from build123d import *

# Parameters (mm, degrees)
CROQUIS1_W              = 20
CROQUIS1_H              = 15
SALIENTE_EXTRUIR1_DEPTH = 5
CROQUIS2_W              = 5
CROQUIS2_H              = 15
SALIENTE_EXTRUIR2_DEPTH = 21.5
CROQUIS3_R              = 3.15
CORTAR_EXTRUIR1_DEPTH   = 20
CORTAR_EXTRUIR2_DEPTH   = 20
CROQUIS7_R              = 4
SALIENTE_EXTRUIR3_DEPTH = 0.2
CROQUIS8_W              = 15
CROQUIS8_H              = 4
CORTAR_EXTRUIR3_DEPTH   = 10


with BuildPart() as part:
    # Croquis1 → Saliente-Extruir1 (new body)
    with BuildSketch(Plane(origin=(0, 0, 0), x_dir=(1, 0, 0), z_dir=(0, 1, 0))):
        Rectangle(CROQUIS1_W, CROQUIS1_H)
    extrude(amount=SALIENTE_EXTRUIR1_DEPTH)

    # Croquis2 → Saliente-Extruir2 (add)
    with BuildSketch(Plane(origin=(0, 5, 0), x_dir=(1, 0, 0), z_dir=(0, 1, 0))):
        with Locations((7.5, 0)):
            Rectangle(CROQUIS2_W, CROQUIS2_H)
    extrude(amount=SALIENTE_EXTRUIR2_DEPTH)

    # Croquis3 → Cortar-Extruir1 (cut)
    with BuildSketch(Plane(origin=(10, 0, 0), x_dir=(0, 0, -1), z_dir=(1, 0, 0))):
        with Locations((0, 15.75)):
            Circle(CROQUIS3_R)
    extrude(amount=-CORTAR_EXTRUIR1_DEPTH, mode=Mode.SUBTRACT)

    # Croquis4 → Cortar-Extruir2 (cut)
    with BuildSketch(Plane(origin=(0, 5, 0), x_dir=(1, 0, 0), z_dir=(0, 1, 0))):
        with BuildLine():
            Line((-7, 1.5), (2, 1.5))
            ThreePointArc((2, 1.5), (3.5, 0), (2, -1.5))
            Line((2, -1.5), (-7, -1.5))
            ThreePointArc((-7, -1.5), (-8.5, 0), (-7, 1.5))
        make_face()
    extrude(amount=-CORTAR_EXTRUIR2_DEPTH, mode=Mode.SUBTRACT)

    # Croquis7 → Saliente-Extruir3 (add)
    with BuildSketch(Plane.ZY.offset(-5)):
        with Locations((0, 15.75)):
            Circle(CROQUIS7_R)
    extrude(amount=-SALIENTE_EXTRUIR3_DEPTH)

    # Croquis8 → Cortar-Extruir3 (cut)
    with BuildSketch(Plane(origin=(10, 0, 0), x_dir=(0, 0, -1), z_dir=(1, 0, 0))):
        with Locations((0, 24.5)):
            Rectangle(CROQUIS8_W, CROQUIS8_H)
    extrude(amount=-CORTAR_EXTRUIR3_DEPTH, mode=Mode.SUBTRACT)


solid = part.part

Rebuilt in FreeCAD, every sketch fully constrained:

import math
import FreeCAD as App
import Part
import Sketcher
from FreeCAD import Vector


def add_polygon(sketch, points):
    """Adds a closed chain of lines whose ends are joined by coincident constraints."""
    first, n = sketch.GeometryCount, len(points)
    for a, b in zip(points, points[1:] + points[:1]):
        sketch.addGeometry(Part.LineSegment(App.Vector(*a, 0), App.Vector(*b, 0)), False)
    for i in range(n):
        sketch.addConstraint(Sketcher.Constraint("Coincident", first + i, 2, first + (i + 1) % n, 1))

doc = App.newDocument("Part")
body = doc.addObject("PartDesign::Body", "Body")

# Sketch on XZ plane
sketch1 = body.newObject("Sketcher::SketchObject", "Sketch")
sketch1.AttachmentSupport = (doc.getObject("XZ_Plane"), [""])
sketch1.MapMode = "FlatFace"
add_polygon(sketch1, [(-10, -8), (-10, 8), (10, 8), (10, -8)])  # lines 0-3
sketch1.addConstraint([
    Sketcher.Constraint("Vertical", 0),
    Sketcher.Constraint("Horizontal", 1),
    Sketcher.Constraint("Vertical", 2),
    Sketcher.Constraint("Horizontal", 3),
    Sketcher.Constraint("Symmetric", 0, 2, 2, 2, -1, 1),
    Sketcher.Constraint("DistanceX", 1, 1, 1, 2, 20.0),
    Sketcher.Constraint("DistanceY", 0, 1, 0, 2, 15.0),
])
pad1 = body.newObject("PartDesign::Pad", "Pad")
pad1.Profile = sketch1
pad1.Length = 5
pad1.Reversed = True

# Sketch on XZ plane
sketch2 = body.newObject("Sketcher::SketchObject", "Sketch001")
sketch2.AttachmentSupport = (doc.getObject("XZ_Plane"), [""])
sketch2.MapMode = "FlatFace"
sketch2.AttachmentOffset = App.Placement(Vector(0, 0, -5), App.Rotation())
add_polygon(sketch2, [(5, -8), (5, 8), (10, 8), (10, -8)])  # lines 0-3
sketch2.addConstraint([
    Sketcher.Constraint("Vertical", 0),
    Sketcher.Constraint("Horizontal", 1),
    Sketcher.Constraint("Vertical", 2),
    Sketcher.Constraint("Horizontal", 3),
    Sketcher.Constraint("DistanceX", 1, 1, 1, 2, 5.0),
    Sketcher.Constraint("DistanceY", 0, 1, 0, 2, 15.0),
    Sketcher.Constraint("DistanceX", -1, 1, 0, 2, 5.0),
    Sketcher.Constraint("DistanceY", -1, 1, 0, 2, 7.5),
])
pad2 = body.newObject("PartDesign::Pad", "Pad001")
pad2.Profile = sketch2
pad2.Length = 21.5
pad2.Reversed = True

# Sketch on YZ plane
sketch3 = body.newObject("Sketcher::SketchObject", "Sketch002")
sketch3.AttachmentSupport = (doc.getObject("YZ_Plane"), [""])
sketch3.MapMode = "FlatFace"
sketch3.AttachmentOffset = App.Placement(Vector(0, 0, 10), App.Rotation())
sketch3.addGeometry(Part.Circle(Vector(15.8, 0, 0), Vector(0, 0, 1), 3.1), False)
sketch3.addConstraint([
    Sketcher.Constraint("PointOnObject", 0, 3, -1),
    Sketcher.Constraint("Diameter", 0, 6.3),
    Sketcher.Constraint("DistanceX", -1, 1, 0, 3, 15.75),
])
pocket1 = body.newObject("PartDesign::Pocket", "Pocket")
pocket1.Profile = sketch3
pocket1.Length = 20

# Sketch on XZ plane
sketch4 = body.newObject("Sketcher::SketchObject", "Sketch003")
sketch4.AttachmentSupport = (doc.getObject("XZ_Plane"), [""])
sketch4.MapMode = "FlatFace"
sketch4.AttachmentOffset = App.Placement(Vector(0, 0, -5), App.Rotation())
sketch4.addGeometry([
    Part.LineSegment(Vector(2, -1.5, 0), Vector(-7, -1.5, 0)),
    Part.ArcOfCircle(Part.Circle(Vector(-7, 0, 0), Vector(0, 0, 1), 1.5), math.radians(90), math.radians(270)),
    Part.LineSegment(Vector(-7, 1.5, 0), Vector(2, 1.5, 0)),
    Part.ArcOfCircle(Part.Circle(Vector(2, 0, 0), Vector(0, 0, 1), 1.5), math.radians(-90), math.radians(90)),
], False)
sketch4.addConstraint([
    Sketcher.Constraint("Tangent", 0, 2, 1, 2),
    Sketcher.Constraint("Tangent", 1, 1, 2, 1),
    Sketcher.Constraint("Tangent", 2, 2, 3, 2),
    Sketcher.Constraint("Tangent", 3, 1, 0, 1),
    Sketcher.Constraint("Horizontal", 0),
    Sketcher.Constraint("Horizontal", 2),
    Sketcher.Constraint("PointOnObject", 1, 3, -1),
    Sketcher.Constraint("Radius", 1, 1.5),
    Sketcher.Constraint("DistanceX", 0, 2, 0, 1, 9.0),
    Sketcher.Constraint("DistanceX", 1, 3, -1, 1, 7.0),
])
pocket2 = body.newObject("PartDesign::Pocket", "Pocket001")
pocket2.Profile = sketch4
pocket2.Length = 20
pocket2.Reversed = True

# Sketch on YZ plane
sketch5 = body.newObject("Sketcher::SketchObject", "Sketch004")
sketch5.AttachmentSupport = (doc.getObject("YZ_Plane"), [""])
sketch5.MapMode = "FlatFace"
sketch5.AttachmentOffset = App.Placement(Vector(0, 0, 5), App.Rotation())
sketch5.addGeometry(Part.Circle(Vector(15.8, 0, 0), Vector(0, 0, 1), 4), False)
sketch5.addConstraint([
    Sketcher.Constraint("PointOnObject", 0, 3, -1),
    Sketcher.Constraint("Diameter", 0, 8.0),
    Sketcher.Constraint("DistanceX", -1, 1, 0, 3, 15.75),
])
pad3 = body.newObject("PartDesign::Pad", "Pad002")
pad3.Profile = sketch5
pad3.Length = 0.2

# Sketch on YZ plane
sketch6 = body.newObject("Sketcher::SketchObject", "Sketch005")
sketch6.AttachmentSupport = (doc.getObject("YZ_Plane"), [""])
sketch6.MapMode = "FlatFace"
sketch6.AttachmentOffset = App.Placement(Vector(0, 0, 10), App.Rotation())
add_polygon(sketch6, [(26.5, 7.5), (22.5, 7.5), (22.5, -7.5), (26.5, -7.5)])  # lines 0-3
sketch6.addConstraint([
    Sketcher.Constraint("Horizontal", 0),
    Sketcher.Constraint("Vertical", 1),
    Sketcher.Constraint("Horizontal", 2),
    Sketcher.Constraint("Vertical", 3),
    Sketcher.Constraint("DistanceX", 0, 2, 0, 1, 4.0),
    Sketcher.Constraint("DistanceY", 1, 2, 1, 1, 15.0),
    Sketcher.Constraint("DistanceX", -1, 1, 0, 2, 22.5),
    Sketcher.Constraint("DistanceY", -1, 1, 0, 2, 7.5),
])
pocket3 = body.newObject("PartDesign::Pocket", "Pocket002")
pocket3.Profile = sketch6
pocket3.Length = 10

doc.recompute()
